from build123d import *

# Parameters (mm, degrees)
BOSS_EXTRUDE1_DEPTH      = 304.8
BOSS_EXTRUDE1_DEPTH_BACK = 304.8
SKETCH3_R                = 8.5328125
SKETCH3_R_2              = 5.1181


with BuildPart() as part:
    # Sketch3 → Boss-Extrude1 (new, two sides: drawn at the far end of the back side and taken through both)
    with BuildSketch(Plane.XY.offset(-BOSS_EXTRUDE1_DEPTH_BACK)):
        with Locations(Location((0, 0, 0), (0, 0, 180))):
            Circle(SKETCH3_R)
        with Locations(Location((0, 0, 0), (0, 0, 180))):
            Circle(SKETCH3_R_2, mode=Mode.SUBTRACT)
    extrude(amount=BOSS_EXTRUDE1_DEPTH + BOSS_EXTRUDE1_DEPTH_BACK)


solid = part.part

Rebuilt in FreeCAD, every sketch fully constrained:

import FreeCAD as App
import Part
import Sketcher
Q = App.Units.Quantity

doc = App.newDocument("Part")
body = doc.addObject("PartDesign::Body", "Body")

sketch1 = body.newObject("Sketcher::SketchObject", "Sketch")
sketch1.AttachmentSupport = (doc.getObject("XY_Plane"), [""])
sketch1.MapMode = "FlatFace"
sketch1.addGeometry(Part.Circle(App.Vector(0, 0, 0), App.Vector(0, 0, 1), 9), False)
sketch1.addGeometry(Part.Circle(App.Vector(0, 0, 0), App.Vector(0, 0, 1), 5), False)
sketch1.addConstraint(Sketcher.Constraint("Coincident", 0, 3, -1, 1))
sketch1.addConstraint(Sketcher.Constraint("Coincident", 1, 3, -1, 1))
sketch1.addConstraint(Sketcher.Constraint("Diameter", 0, Q("0.671875 in")))
sketch1.addConstraint(Sketcher.Constraint("Diameter", 1, Q("0.403 in")))
pad1 = body.newObject("PartDesign::Pad", "Pad")
pad1.Profile = sketch1
pad1.Type = "TwoLengths"
pad1.Length = Q("12 in")
pad1.Length2 = Q("12 in")

doc.recompute()
